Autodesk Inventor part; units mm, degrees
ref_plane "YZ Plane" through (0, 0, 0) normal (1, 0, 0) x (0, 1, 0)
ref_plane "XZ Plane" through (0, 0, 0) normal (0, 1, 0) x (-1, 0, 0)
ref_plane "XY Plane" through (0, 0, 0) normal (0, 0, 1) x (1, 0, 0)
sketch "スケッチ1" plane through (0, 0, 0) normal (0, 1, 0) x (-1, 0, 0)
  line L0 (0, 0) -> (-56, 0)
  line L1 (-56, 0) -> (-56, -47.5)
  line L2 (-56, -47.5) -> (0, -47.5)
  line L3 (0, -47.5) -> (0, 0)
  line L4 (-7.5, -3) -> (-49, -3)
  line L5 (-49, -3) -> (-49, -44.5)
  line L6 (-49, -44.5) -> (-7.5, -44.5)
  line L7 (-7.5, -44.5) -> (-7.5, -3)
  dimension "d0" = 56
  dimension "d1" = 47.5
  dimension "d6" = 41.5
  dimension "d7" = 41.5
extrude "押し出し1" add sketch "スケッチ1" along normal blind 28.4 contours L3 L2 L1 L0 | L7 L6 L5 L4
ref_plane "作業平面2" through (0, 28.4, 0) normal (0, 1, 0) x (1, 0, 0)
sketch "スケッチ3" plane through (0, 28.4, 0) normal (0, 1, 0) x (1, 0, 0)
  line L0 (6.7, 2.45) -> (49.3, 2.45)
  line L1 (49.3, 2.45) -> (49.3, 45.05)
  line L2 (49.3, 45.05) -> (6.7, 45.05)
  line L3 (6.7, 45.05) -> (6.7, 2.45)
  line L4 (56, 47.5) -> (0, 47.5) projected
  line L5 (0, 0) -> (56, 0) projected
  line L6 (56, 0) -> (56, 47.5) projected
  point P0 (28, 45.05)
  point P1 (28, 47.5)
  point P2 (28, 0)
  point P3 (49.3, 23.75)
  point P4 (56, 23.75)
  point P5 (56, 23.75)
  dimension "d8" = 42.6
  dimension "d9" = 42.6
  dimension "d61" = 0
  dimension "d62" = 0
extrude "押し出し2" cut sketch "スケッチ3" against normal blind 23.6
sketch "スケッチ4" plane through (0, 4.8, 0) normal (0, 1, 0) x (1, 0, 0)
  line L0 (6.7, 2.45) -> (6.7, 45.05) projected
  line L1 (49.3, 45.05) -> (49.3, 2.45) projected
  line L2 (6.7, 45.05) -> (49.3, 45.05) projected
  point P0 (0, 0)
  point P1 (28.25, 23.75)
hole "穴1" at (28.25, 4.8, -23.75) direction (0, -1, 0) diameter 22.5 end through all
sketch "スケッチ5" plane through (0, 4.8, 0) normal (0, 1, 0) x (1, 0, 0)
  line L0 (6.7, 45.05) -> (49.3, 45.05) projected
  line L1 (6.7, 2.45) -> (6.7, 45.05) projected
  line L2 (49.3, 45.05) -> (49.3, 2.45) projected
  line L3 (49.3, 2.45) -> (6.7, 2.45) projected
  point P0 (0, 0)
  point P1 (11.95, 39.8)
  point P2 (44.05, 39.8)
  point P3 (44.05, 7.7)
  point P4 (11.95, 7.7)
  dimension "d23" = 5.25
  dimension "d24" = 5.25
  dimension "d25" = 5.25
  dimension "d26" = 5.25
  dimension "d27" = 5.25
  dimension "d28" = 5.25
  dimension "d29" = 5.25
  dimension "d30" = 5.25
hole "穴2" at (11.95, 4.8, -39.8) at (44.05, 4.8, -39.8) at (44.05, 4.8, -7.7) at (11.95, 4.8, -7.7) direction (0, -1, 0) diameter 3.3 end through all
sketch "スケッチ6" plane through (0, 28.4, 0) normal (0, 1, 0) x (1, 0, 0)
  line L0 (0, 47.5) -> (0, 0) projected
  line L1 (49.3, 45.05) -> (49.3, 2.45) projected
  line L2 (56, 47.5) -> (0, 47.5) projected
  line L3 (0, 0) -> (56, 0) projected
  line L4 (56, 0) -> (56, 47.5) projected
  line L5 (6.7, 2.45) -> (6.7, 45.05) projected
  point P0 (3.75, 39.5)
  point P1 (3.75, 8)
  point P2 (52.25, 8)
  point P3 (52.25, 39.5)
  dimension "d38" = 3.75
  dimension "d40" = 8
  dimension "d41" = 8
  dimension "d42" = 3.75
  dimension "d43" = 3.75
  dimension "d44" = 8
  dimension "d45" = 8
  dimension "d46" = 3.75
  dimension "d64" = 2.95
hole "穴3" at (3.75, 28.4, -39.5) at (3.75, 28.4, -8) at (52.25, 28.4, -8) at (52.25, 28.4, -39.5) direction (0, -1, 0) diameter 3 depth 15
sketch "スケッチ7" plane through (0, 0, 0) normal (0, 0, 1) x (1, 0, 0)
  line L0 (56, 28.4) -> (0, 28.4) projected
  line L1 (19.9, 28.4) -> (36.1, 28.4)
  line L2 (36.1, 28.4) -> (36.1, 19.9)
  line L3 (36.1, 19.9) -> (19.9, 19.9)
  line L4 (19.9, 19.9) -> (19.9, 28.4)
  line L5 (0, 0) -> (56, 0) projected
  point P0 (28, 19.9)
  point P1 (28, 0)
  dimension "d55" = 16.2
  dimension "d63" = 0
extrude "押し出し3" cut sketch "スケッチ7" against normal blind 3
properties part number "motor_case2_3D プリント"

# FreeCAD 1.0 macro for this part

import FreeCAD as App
import Part
import Sketcher
from FreeCAD import Vector


def add_polygon(sketch, points):
    """Adds a closed chain of lines whose ends are joined by coincident constraints."""
    first, n = sketch.GeometryCount, len(points)
    for a, b in zip(points, points[1:] + points[:1]):
        sketch.addGeometry(Part.LineSegment(App.Vector(*a, 0), App.Vector(*b, 0)), False)
    for i in range(n):
        sketch.addConstraint(Sketcher.Constraint("Coincident", first + i, 2, first + (i + 1) % n, 1))

doc = App.newDocument("Part")
body = doc.addObject("PartDesign::Body", "Body")

sketch1 = body.newObject("Sketcher::SketchObject", "Sketch")
sketch1.AttachmentSupport = (doc.getObject("XZ_Plane"), [""])
sketch1.MapMode = "FlatFace"
add_polygon(sketch1, [(0, -47.5), (0, 0), (56, 0), (56, -47.5)])
sketch1.addConstraint([
    Sketcher.Constraint("Vertical", 0),
    Sketcher.Constraint("Horizontal", 1),
    Sketcher.Constraint("Vertical", 2),
    Sketcher.Constraint("Horizontal", 3),
    Sketcher.Constraint("Coincident", 0, 2, -1, 1),
    Sketcher.Constraint("DistanceX", 1, 1, 1, 2, 56.0),
    Sketcher.Constraint("DistanceY", 0, 1, 0, 2, 47.5),
])
pad1 = body.newObject("PartDesign::Pad", "Pad")
pad1.Profile = sketch1
pad1.Length = 28.4
pad1.Reversed = True

sketch2 = body.newObject("Sketcher::SketchObject", "Sketch001")
sketch2.AttachmentSupport = (doc.getObject("XZ_Plane"), [""])
sketch2.MapMode = "FlatFace"
sketch2.AttachmentOffset = App.Placement(Vector(0, 0, -28.4), App.Rotation())
add_polygon(sketch2, [(6.7, -45.05), (6.7, -2.45), (49.3, -2.45), (49.3, -45.05)])
sketch2.addConstraint([
    Sketcher.Constraint("Vertical", 0),
    Sketcher.Constraint("Horizontal", 1),
    Sketcher.Constraint("Vertical", 2),
    Sketcher.Constraint("Horizontal", 3),
    Sketcher.Constraint("Equal", 3, 0),
    Sketcher.Constraint("DistanceX", 1, 1, 1, 2, 42.6),
    Sketcher.Constraint("DistanceX", -1, 1, 0, 2, 6.7),
    Sketcher.Constraint("DistanceY", 0, 2, -1, 1, 2.45),
])
pocket1 = body.newObject("PartDesign::Pocket", "Pocket")
pocket1.Profile = sketch2
pocket1.Length = 23.6
pocket1.Reversed = True

sketch3 = body.newObject("Sketcher::SketchObject", "Sketch002")
sketch3.AttachmentSupport = (doc.getObject("XZ_Plane"), [""])
sketch3.MapMode = "FlatFace"
sketch3.AttachmentOffset = App.Placement(Vector(0, 0, -4.8), App.Rotation())
sketch3.addGeometry(Part.Circle(Vector(28.25, -23.75, 0), Vector(0, 0, 1), 11.25), False)
sketch3.addConstraint([
    Sketcher.Constraint("Diameter", 0, 22.5),
    Sketcher.Constraint("DistanceX", -1, 1, 0, 3, 28.25),
    Sketcher.Constraint("DistanceY", 0, 3, -1, 1, 23.75),
])
doc.recompute()
hole = body.newObject("PartDesign::Hole", "Hole")
hole.Profile = sketch3
hole.ThreadType = "None"
hole.Diameter = 22.5
hole.DepthType = "ThroughAll"
hole.Reversed = True

sketch4 = body.newObject("Sketcher::SketchObject", "Sketch003")
sketch4.AttachmentSupport = (doc.getObject("XZ_Plane"), [""])
sketch4.MapMode = "FlatFace"
sketch4.AttachmentOffset = App.Placement(Vector(0, 0, -4.8), App.Rotation())
sketch4.addGeometry([
    Part.Circle(Vector(11.95, -39.8, 0), Vector(0, 0, 1), 1.65),
    Part.Circle(Vector(44.05, -39.8, 0), Vector(0, 0, 1), 1.65),
    Part.Circle(Vector(44.05, -7.7, 0), Vector(0, 0, 1), 1.65),
    Part.Circle(Vector(11.95, -7.7, 0), Vector(0, 0, 1), 1.65),
], False)
sketch4.addConstraint([
    Sketcher.Constraint("Equal", 0, 1),
    Sketcher.Constraint("Equal", 1, 2),
    Sketcher.Constraint("Equal", 2, 3),
    Sketcher.Constraint("Horizontal", 0, 3, 1, 3),
    Sketcher.Constraint("Horizontal", 2, 3, 3, 3),
    Sketcher.Constraint("Vertical", 1, 3, 2, 3),
    Sketcher.Constraint("Vertical", 0, 3, 3, 3),
    Sketcher.Constraint("Diameter", 0, 3.3),
    Sketcher.Constraint("DistanceY", 0, 3, -1, 1, 39.8),
    Sketcher.Constraint("DistanceY", 2, 3, -1, 1, 7.7),
    Sketcher.Constraint("DistanceX", 0, 3, 1, 3, 32.1),
    Sketcher.Constraint("DistanceX", -1, 1, 0, 3, 11.95),
])
doc.recompute()
hole2 = body.newObject("PartDesign::Hole", "Hole001")
hole2.Profile = sketch4
hole2.ThreadType = "None"
hole2.Diameter = 3.3
hole2.DepthType = "ThroughAll"
hole2.Reversed = True

sketch5 = body.newObject("Sketcher::SketchObject", "Sketch004")
sketch5.AttachmentSupport = (doc.getObject("XZ_Plane"), [""])
sketch5.MapMode = "FlatFace"
sketch5.AttachmentOffset = App.Placement(Vector(0, 0, -28.4), App.Rotation())
sketch5.addGeometry([
    Part.Circle(Vector(3.75, -39.5, 0), Vector(0, 0, 1), 1.5),
    Part.Circle(Vector(3.75, -8, 0), Vector(0, 0, 1), 1.5),
    Part.Circle(Vector(52.25, -8, 0), Vector(0, 0, 1), 1.5),
    Part.Circle(Vector(52.25, -39.5, 0), Vector(0, 0, 1), 1.5),
], False)
sketch5.addConstraint([
    Sketcher.Constraint("Equal", 0, 1),
    Sketcher.Constraint("Equal", 1, 2),
    Sketcher.Constraint("Equal", 2, 3),
    Sketcher.Constraint("Horizontal", 1, 3, 2, 3),
    Sketcher.Constraint("Horizontal", 0, 3, 3, 3),
    Sketcher.Constraint("Vertical", 0, 3, 1, 3),
    Sketcher.Constraint("Vertical", 2, 3, 3, 3),
    Sketcher.Constraint("Diameter", 0, 3.0),
    Sketcher.Constraint("DistanceY", 1, 3, -1, 1, 8.0),
    Sketcher.Constraint("DistanceY", 0, 3, -1, 1, 39.5),
    Sketcher.Constraint("DistanceX", 1, 3, 2, 3, 48.5),
    Sketcher.Constraint("DistanceX", -1, 1, 0, 3, 3.75),
])
doc.recompute()
hole3 = body.newObject("PartDesign::Hole", "Hole002")
hole3.Profile = sketch5
hole3.ThreadType = "None"
hole3.Diameter = 3
hole3.DepthType = "Dimension"
hole3.Depth = 15
hole3.DrillPoint = "Flat"
hole3.Reversed = True

sketch6 = body.newObject("Sketcher::SketchObject", "Sketch005")
sketch6.AttachmentSupport = (doc.getObject("XY_Plane"), [""])
sketch6.MapMode = "FlatFace"
add_polygon(sketch6, [(36.1, 19.9), (36.1, 28.4), (19.9, 28.4), (19.9, 19.9)])
sketch6.addConstraint([
    Sketcher.Constraint("Vertical", 0),
    Sketcher.Constraint("Horizontal", 1),
    Sketcher.Constraint("Vertical", 2),
    Sketcher.Constraint("Horizontal", 3),
    Sketcher.Constraint("DistanceX", 1, 2, 1, 1, 16.2),
    Sketcher.Constraint("DistanceY", 0, 1, 0, 2, 8.5),
    Sketcher.Constraint("DistanceX", -1, 1, 0, 2, 36.1),
    Sketcher.Constraint("DistanceY", -1, 1, 0, 2, 28.4),
])
pocket2 = body.newObject("PartDesign::Pocket", "Pocket001")
pocket2.Profile = sketch6
pocket2.Length = 3

doc.recompute()
